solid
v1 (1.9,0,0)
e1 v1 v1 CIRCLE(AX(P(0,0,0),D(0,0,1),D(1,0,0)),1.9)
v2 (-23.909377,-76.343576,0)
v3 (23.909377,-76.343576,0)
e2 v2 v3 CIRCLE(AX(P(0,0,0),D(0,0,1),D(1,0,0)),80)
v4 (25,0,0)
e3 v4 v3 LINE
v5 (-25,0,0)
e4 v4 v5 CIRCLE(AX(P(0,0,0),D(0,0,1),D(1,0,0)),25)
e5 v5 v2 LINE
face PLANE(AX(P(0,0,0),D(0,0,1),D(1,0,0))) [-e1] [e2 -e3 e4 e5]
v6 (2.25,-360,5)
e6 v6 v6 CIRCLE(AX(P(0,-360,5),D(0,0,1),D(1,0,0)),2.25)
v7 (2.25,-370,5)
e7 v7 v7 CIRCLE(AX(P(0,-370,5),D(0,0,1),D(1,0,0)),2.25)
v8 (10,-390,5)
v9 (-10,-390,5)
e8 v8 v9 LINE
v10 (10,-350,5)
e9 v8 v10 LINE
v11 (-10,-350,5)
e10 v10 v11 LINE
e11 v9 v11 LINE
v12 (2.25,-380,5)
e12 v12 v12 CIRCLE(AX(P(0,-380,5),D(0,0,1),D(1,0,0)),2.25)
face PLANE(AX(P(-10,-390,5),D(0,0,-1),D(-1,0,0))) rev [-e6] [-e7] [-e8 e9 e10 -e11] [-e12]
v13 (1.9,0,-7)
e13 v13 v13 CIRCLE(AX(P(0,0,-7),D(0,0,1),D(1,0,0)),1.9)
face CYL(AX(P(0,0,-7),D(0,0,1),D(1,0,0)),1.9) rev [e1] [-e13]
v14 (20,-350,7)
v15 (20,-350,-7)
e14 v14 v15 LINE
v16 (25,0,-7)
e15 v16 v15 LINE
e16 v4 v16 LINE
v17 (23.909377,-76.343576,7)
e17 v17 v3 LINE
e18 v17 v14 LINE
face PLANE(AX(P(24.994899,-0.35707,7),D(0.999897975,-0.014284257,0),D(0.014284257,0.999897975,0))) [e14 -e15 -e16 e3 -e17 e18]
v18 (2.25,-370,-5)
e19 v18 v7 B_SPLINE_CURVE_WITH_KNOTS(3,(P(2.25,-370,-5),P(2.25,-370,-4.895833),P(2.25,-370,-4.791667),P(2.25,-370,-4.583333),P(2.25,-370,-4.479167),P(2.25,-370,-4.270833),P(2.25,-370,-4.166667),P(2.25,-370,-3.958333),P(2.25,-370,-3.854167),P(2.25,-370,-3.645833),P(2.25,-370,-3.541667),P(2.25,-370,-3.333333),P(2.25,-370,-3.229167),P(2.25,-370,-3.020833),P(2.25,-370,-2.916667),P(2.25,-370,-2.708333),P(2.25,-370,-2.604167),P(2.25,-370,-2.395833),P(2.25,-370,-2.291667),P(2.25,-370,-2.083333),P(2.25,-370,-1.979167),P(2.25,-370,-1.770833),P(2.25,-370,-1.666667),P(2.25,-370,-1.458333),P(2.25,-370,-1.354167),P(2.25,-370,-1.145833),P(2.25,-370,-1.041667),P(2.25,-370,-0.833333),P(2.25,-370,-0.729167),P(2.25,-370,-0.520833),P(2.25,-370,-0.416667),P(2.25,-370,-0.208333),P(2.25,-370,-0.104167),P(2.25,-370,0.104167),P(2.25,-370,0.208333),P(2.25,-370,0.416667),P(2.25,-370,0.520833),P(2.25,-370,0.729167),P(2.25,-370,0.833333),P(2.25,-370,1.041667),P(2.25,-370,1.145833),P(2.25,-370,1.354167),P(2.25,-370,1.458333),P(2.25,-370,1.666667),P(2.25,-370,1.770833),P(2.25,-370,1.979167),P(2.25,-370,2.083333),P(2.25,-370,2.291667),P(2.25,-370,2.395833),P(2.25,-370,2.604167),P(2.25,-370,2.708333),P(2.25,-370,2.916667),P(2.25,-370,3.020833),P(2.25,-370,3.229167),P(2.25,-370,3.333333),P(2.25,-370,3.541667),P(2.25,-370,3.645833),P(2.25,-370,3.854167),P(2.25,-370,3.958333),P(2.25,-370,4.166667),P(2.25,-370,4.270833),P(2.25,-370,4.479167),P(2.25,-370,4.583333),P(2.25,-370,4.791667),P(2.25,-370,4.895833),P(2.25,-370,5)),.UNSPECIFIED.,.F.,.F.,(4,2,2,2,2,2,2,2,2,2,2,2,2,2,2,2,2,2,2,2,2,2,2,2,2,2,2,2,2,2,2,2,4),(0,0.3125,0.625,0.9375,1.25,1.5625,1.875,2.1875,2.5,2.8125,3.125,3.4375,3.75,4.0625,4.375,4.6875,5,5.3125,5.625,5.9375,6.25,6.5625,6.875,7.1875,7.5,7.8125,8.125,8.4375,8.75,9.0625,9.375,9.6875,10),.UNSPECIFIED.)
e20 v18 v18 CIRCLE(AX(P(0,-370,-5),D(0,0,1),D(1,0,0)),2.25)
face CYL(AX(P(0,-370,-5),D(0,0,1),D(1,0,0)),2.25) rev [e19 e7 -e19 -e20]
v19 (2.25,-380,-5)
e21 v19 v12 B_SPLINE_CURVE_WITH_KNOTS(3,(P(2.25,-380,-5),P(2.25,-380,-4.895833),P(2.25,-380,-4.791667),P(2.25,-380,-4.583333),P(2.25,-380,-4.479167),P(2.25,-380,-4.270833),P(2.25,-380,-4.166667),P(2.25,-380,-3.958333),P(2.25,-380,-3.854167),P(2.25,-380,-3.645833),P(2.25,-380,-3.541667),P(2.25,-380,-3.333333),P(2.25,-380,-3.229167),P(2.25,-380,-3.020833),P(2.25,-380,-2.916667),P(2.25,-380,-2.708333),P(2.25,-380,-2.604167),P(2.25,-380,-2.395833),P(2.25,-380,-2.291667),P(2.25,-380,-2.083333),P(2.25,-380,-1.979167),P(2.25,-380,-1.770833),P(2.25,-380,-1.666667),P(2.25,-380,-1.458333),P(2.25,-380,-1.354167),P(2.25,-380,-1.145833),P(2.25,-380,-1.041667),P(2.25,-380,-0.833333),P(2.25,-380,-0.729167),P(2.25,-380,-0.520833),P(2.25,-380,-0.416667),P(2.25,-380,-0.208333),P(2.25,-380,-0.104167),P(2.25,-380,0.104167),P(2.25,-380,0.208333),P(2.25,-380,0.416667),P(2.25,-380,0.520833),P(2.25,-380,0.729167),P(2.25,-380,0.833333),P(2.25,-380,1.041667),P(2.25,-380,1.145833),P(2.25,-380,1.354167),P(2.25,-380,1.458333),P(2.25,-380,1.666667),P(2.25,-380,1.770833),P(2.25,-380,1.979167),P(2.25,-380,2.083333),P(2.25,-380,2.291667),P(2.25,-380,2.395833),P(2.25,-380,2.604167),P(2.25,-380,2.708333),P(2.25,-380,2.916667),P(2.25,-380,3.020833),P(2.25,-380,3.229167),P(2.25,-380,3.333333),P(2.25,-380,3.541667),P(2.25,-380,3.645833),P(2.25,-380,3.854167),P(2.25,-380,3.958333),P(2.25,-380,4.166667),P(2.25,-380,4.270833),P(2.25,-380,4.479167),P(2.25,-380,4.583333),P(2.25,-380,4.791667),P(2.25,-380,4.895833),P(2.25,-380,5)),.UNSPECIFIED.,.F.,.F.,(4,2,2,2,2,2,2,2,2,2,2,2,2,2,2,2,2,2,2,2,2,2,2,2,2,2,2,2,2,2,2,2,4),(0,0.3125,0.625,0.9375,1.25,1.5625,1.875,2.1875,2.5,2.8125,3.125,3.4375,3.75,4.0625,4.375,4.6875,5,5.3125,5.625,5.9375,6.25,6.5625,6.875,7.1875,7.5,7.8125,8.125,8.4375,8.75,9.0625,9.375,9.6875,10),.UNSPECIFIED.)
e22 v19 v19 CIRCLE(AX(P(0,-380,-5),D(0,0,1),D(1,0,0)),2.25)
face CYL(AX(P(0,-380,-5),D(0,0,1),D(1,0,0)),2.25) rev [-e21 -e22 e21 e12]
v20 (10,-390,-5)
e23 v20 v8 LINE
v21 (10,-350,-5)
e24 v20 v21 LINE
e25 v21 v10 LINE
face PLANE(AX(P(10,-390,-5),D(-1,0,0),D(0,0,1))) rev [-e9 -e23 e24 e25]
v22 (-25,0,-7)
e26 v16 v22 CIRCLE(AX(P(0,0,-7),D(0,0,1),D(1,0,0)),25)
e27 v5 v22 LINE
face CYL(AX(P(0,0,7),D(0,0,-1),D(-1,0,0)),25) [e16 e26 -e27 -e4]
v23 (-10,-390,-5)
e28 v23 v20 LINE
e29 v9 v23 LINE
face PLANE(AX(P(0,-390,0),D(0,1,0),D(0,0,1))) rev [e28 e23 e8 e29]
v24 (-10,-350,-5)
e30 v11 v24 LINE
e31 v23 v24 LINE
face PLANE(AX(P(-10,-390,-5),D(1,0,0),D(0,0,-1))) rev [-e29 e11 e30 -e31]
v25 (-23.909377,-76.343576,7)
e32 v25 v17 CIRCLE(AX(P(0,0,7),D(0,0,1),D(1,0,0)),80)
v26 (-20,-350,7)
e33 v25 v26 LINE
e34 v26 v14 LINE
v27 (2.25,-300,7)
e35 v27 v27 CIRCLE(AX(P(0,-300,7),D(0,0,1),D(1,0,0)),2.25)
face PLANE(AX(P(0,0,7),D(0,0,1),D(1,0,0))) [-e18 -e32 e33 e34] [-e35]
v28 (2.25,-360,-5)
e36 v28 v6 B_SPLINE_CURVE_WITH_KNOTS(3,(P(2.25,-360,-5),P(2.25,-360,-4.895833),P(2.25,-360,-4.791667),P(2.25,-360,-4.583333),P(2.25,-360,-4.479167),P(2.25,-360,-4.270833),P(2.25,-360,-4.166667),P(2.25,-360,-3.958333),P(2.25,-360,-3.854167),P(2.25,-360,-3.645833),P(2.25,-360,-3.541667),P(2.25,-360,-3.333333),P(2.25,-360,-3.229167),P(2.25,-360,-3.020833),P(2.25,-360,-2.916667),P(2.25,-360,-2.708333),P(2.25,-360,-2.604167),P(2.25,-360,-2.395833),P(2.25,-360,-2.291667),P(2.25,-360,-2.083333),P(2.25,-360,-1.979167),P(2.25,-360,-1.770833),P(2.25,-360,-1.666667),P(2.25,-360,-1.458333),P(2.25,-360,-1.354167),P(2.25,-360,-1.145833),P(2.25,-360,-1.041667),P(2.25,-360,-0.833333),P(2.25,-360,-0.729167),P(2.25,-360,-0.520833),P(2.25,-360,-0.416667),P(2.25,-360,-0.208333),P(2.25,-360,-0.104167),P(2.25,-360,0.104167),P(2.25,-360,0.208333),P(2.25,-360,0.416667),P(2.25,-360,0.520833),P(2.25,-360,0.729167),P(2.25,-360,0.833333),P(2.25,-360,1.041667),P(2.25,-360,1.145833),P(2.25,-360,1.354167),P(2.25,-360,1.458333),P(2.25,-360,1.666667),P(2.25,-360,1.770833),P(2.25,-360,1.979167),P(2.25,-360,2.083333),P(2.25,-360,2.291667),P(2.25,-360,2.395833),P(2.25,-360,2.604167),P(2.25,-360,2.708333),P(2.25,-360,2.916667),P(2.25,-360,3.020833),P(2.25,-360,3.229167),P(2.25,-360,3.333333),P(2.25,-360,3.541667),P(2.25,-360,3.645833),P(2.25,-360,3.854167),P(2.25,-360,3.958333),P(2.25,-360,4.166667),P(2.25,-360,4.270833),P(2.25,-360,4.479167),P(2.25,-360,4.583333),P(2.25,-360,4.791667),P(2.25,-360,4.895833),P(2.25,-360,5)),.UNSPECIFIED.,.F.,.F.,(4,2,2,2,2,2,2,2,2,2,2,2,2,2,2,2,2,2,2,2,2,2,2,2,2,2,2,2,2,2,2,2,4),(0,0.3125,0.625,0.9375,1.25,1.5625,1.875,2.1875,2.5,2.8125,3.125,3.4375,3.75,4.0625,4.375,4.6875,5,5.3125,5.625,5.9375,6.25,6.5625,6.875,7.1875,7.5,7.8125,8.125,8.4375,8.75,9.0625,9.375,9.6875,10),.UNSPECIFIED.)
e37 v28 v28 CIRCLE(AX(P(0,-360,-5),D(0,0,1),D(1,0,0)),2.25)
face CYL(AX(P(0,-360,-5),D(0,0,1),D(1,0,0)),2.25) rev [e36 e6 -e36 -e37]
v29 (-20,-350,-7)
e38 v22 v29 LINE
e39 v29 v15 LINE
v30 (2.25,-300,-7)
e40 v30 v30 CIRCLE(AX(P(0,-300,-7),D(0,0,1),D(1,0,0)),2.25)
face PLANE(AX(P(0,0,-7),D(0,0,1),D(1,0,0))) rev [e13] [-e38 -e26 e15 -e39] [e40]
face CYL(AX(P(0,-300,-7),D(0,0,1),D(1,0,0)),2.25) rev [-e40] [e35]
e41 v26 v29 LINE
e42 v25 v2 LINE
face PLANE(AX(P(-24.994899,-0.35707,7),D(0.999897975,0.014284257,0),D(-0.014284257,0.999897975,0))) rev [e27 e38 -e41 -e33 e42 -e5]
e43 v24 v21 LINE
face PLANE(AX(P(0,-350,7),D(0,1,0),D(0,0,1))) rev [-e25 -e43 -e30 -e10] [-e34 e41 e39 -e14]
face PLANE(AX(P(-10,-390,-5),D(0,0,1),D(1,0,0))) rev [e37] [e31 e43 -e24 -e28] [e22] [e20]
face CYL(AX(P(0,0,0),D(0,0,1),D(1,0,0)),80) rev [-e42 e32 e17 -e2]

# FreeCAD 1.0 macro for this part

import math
import FreeCAD as App
import Part
import Sketcher

V = App.Vector
Q = App.Units.Quantity

doc = App.newDocument("Part")
body = doc.addObject("PartDesign::Body", "Body")

sketch1 = body.newObject("Sketcher::SketchObject", "Sketch")
sketch1.AttachmentSupport = (doc.getObject("XY_Plane"), [""])
sketch1.MapMode = "FlatFace"
sketch1.addGeometry([
    Part.ArcOfCircle(Part.Circle(V(0, 0, 0), V(0, 0, 1), 25), math.radians(0), math.radians(180)),
    Part.LineSegment(V(-25, 0, 0), V(-24.989798, -0.71414, 0)),
    Part.LineSegment(V(-24.989798, -0.71414, 0), V(-20, -350, 0)),
    Part.LineSegment(V(-20, -350, 0), V(20, -350, 0)),
    Part.LineSegment(V(20, -350, 0), V(24.989798, -0.71414, 0)),
    Part.LineSegment(V(24.989798, -0.71414, 0), V(25, 0, 0)),
], False)
sketch1.addConstraint([
    Sketcher.Constraint("Coincident", 0, 2, 1, 1),
    Sketcher.Constraint("Coincident", 1, 2, 2, 1),
    Sketcher.Constraint("Coincident", 2, 2, 3, 1),
    Sketcher.Constraint("Coincident", 3, 2, 4, 1),
    Sketcher.Constraint("Coincident", 4, 2, 5, 1),
    Sketcher.Constraint("Coincident", 5, 2, 0, 1),
    Sketcher.Constraint("Horizontal", 3),
    Sketcher.Constraint("Coincident", 0, 3, -1, 1),
    Sketcher.Constraint("Symmetric", 1, 2, 4, 2, -2),
    Sketcher.Constraint("PointOnObject", 0, 2, -1),
    Sketcher.Constraint("PointOnObject", 5, 2, -1),
    Sketcher.Constraint("Parallel", 1, 2),
    Sketcher.Constraint("Equal", 2, 4),
    Sketcher.Constraint("Radius", 0, Q("25 mm")),
    Sketcher.Constraint("DistanceX", 3, 1, 3, 2, Q("40 mm")),
    Sketcher.Constraint("DistanceY", 2, 2, -1, 1, Q("350 mm")),
    Sketcher.Constraint("Distance", 2, Q("349.3215 mm")),
])
pad1 = body.newObject("PartDesign::Pad", "Pad")
pad1.Profile = sketch1
pad1.Length = 14
pad1.Midplane = True

sketch2 = body.newObject("Sketcher::SketchObject", "Sketch001")
sketch2.AttachmentSupport = (doc.getObject("XY_Plane"), [""])
sketch2.MapMode = "FlatFace"
sketch2.AttachmentOffset = App.Placement(V(0, 0, 7), App.Rotation())
sketch2.addGeometry(Part.Circle(V(0, 0, 0), V(0, 0, 1), 80), False)
sketch2.addConstraint([
    Sketcher.Constraint("Coincident", 0, 3, -1, 1),
    Sketcher.Constraint("Diameter", 0, Q("160 mm")),
])
pocket1 = body.newObject("PartDesign::Pocket", "Pocket")
pocket1.Profile = sketch2
pocket1.Length = 7

sketch3 = body.newObject("Sketcher::SketchObject", "Sketch002")
sketch3.AttachmentSupport = (doc.getObject("XY_Plane"), [""])
sketch3.MapMode = "FlatFace"
sketch3.AttachmentOffset = App.Placement(V(0, 0, 7), App.Rotation())
sketch3.addGeometry(Part.Circle(V(0, -300, 0), V(0, 0, 1), 2.25), False)
sketch3.addConstraint([
    Sketcher.Constraint("PointOnObject", 0, 3, -2),
    Sketcher.Constraint("Diameter", 0, Q("4.5 mm")),
    Sketcher.Constraint("DistanceY", 0, 3, -1, 1, Q("300 mm")),
])
pocket2 = body.newObject("PartDesign::Pocket", "Pocket001")
pocket2.Profile = sketch3
pocket2.Length = 14

sketch4 = body.newObject("Sketcher::SketchObject", "Sketch003")
sketch4.AttachmentSupport = (doc.getObject("XY_Plane"), [""])
sketch4.MapMode = "FlatFace"
sketch4.addGeometry(Part.Circle(V(0, 0, 0), V(0, 0, 1), 1.9), False)
sketch4.addConstraint([
    Sketcher.Constraint("Coincident", 0, 3, -1, 1),
    Sketcher.Constraint("Diameter", 0, Q("3.8 mm")),
])
pocket3 = body.newObject("PartDesign::Pocket", "Pocket002")
pocket3.Profile = sketch4
pocket3.Length = 7

sketch5 = body.newObject("Sketcher::SketchObject", "Sketch004")
sketch5.AttachmentSupport = (doc.getObject("XZ_Plane"), [""])
sketch5.MapMode = "FlatFace"
sketch5.AttachmentOffset = App.Placement(V(0, 0, 350), App.Rotation())
sketch5.addGeometry([
    Part.LineSegment(V(-10, 5, 0), V(-10, -5, 0)),
    Part.LineSegment(V(-10, -5, 0), V(10, -5, 0)),
    Part.LineSegment(V(10, -5, 0), V(10, 5, 0)),
    Part.LineSegment(V(10, 5, 0), V(-10, 5, 0)),
], False)
sketch5.addConstraint([
    Sketcher.Constraint("Coincident", 0, 2, 1, 1),
    Sketcher.Constraint("Coincident", 1, 2, 2, 1),
    Sketcher.Constraint("Coincident", 2, 2, 3, 1),
    Sketcher.Constraint("Coincident", 3, 2, 0, 1),
    Sketcher.Constraint("Vertical", 0),
    Sketcher.Constraint("Horizontal", 1),
    Sketcher.Constraint("Vertical", 2),
    Sketcher.Constraint("Horizontal", 3),
    Sketcher.Constraint("Symmetric", 0, 2, 2, 2, -1, 1),
    Sketcher.Constraint("DistanceX", 1, 1, 1, 2, Q("20 mm")),
    Sketcher.Constraint("DistanceY", 0, 2, 0, 1, Q("10 mm")),
])
pad2 = body.newObject("PartDesign::Pad", "Pad001")
pad2.Profile = sketch5
pad2.Length = 40

sketch6 = body.newObject("Sketcher::SketchObject", "Sketch005")
sketch6.AttachmentSupport = (doc.getObject("XY_Plane"), [""])
sketch6.MapMode = "FlatFace"
sketch6.AttachmentOffset = App.Placement(V(0, 0, 5), App.Rotation())
sketch6.addGeometry(Part.Circle(V(0, -360, 0), V(0, 0, 1), 2.25), False)
sketch6.addConstraint([
    Sketcher.Constraint("PointOnObject", 0, 3, -2),
    Sketcher.Constraint("Diameter", 0, Q("4.5 mm")),
    Sketcher.Constraint("DistanceY", 0, 3, -1, 1, Q("360 mm")),
])
pocket4 = body.newObject("PartDesign::Pocket", "Pocket003")
pocket4.Profile = sketch6
pocket4.Length = 10
doc.recompute()

linearpattern = body.newObject("PartDesign::LinearPattern", "LinearPattern")
linearpattern.Originals = [pocket4]
linearpattern.Direction = (doc.getObject("Y_Axis"), [""])
linearpattern.Mode = "offset"
linearpattern.Offset = 10
linearpattern.Occurrences = 3
linearpattern.Reversed = True
body.Tip = linearpattern

doc.recompute()
